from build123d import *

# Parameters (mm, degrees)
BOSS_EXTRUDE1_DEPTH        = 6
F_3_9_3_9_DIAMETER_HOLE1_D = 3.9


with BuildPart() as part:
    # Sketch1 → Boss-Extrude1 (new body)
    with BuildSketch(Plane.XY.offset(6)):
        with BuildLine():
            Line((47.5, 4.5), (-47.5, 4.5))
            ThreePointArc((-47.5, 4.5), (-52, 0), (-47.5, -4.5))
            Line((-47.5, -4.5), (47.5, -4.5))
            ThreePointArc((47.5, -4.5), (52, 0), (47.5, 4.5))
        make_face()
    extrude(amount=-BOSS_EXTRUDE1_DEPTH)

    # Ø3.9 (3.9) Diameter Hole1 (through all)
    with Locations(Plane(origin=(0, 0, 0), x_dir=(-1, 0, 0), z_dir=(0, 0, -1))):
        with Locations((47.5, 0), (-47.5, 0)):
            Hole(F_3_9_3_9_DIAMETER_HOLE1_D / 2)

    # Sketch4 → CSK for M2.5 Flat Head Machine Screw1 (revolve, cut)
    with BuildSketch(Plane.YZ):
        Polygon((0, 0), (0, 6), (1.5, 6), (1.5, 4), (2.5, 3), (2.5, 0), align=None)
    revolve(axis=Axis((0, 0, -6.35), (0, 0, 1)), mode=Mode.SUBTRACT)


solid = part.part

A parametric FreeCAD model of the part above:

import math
import FreeCAD as App
import Part
import Sketcher
Q = App.Units.Quantity


def add_polygon(sketch, points):
    """Adds a closed chain of lines whose ends are joined by coincident constraints."""
    first, n = sketch.GeometryCount, len(points)
    for a, b in zip(points, points[1:] + points[:1]):
        sketch.addGeometry(Part.LineSegment(App.Vector(*a, 0), App.Vector(*b, 0)), False)
    for i in range(n):
        sketch.addConstraint(Sketcher.Constraint("Coincident", first + i, 2, first + (i + 1) % n, 1))

doc = App.newDocument("Part")
params = doc.addObject("Spreadsheet::Sheet", "Params")
for row, (alias, value) in enumerate([
    ("sketch1_radius", "4.5 mm"),
    ("sketch1_width", "95 mm"),
    ("pad1_length", "6 mm"),
    ("sketch2_diameter", "3.9 mm"),
    ("hole_diameter", "3.9 mm"),
    ("sketch3_height", "6 mm"),
    ("sketch3_height2", "3 mm"),
    ("sketch3_height3", "2 mm"),
    ("sketch3_width", "2.5 mm"),
    ("groove_angle", "360 deg"),
], start=1):
    params.set(f"A{row}", alias)
    params.set(f"B{row}", "=" + value)
    params.setAlias(f"B{row}", alias)

body = doc.addObject("PartDesign::Body", "Body")

# Sketch on XY plane
sketch1 = body.newObject("Sketcher::SketchObject", "Sketch")
sketch1.AttachmentSupport = (doc.getObject("XY_Plane"), [""])
sketch1.MapMode = "FlatFace"
sketch1.AttachmentOffset = App.Placement(App.Vector(0, 0, 6), App.Rotation())
sketch1.addGeometry([
    Part.LineSegment(App.Vector(47.5, 4.5, 0), App.Vector(-47.5, 4.5, 0)),
    Part.ArcOfCircle(Part.Circle(App.Vector(-47.5, 0, 0), App.Vector(0, 0, 1), 4.5), math.radians(90), math.radians(270)),
    Part.LineSegment(App.Vector(-47.5, -4.5, 0), App.Vector(47.5, -4.5, 0)),
    Part.ArcOfCircle(Part.Circle(App.Vector(47.5, 0, 0), App.Vector(0, 0, 1), 4.5), math.radians(-90), math.radians(90)),
], False)
sketch1.addConstraint([
    Sketcher.Constraint("Tangent", 0, 2, 1, 1),
    Sketcher.Constraint("Tangent", 1, 2, 2, 1),
    Sketcher.Constraint("Tangent", 2, 2, 3, 1),
    Sketcher.Constraint("Tangent", 3, 2, 0, 1),
    Sketcher.Constraint("Horizontal", 0),
    Sketcher.Constraint("Horizontal", 2),
    Sketcher.Constraint("Symmetric", 1, 3, 3, 3, -1, 1),
    Sketcher.Constraint("Radius", 1, Q("4.5 mm")),
    Sketcher.Constraint("DistanceX", 0, 2, 0, 1, Q("95 mm")),
])
sketch1.setExpression("Constraints[7]", "Params.sketch1_radius")
sketch1.setExpression("Constraints[8]", "Params.sketch1_width")
pad1 = body.newObject("PartDesign::Pad", "Pad")
pad1.Profile = sketch1
pad1.setExpression("Length", "Params.pad1_length")
pad1.Reversed = True

# Sketch on XY plane
sketch2 = body.newObject("Sketcher::SketchObject", "Sketch001")
sketch2.AttachmentSupport = (doc.getObject("XY_Plane"), [""])
sketch2.MapMode = "FlatFace"
sketch2.addGeometry([
    Part.Circle(App.Vector(-47.5, 0, 0), App.Vector(0, 0, 1), 1.9),
    Part.Circle(App.Vector(47.5, 0, 0), App.Vector(0, 0, 1), 1.9),
], False)
sketch2.addConstraint([
    Sketcher.Constraint("Equal", 0, 1),
    Sketcher.Constraint("Symmetric", 0, 3, 1, 3, -1, 1),
    Sketcher.Constraint("PointOnObject", 0, 3, -1),
    Sketcher.Constraint("Diameter", 0, Q("3.9 mm")),
    Sketcher.Constraint("DistanceX", 0, 3, 1, 3, Q("95 mm")),
])
sketch2.setExpression("Constraints[3]", "Params.sketch2_diameter")
doc.recompute()
hole = body.newObject("PartDesign::Hole", "Hole")
hole.Profile = sketch2
hole.ThreadType = "None"
hole.setExpression("Diameter", "Params.hole_diameter")
hole.DepthType = "ThroughAll"
hole.Reversed = True

# Sketch on YZ plane
sketch3 = body.newObject("Sketcher::SketchObject", "Sketch002")
sketch3.AttachmentSupport = (doc.getObject("YZ_Plane"), [""])
sketch3.MapMode = "FlatFace"
add_polygon(sketch3, [(0, 6), (0, 0), (2.5, 0), (2.5, 3), (1.5, 4), (1.5, 6)])  # lines 0-5
sketch3.addConstraint([
    Sketcher.Constraint("Vertical", 0),
    Sketcher.Constraint("Horizontal", 1),
    Sketcher.Constraint("Vertical", 2),
    Sketcher.Constraint("Vertical", 4),
    Sketcher.Constraint("Horizontal", 5),
    Sketcher.Constraint("Coincident", 0, 2, -1, 1),
    Sketcher.Constraint("DistanceY", 0, 2, 0, 1, Q("6 mm")),
    Sketcher.Constraint("DistanceY", 2, 1, 2, 2, Q("3 mm")),
    Sketcher.Constraint("DistanceY", 4, 1, 4, 2, Q("2 mm")),
    Sketcher.Constraint("Angle", 3, Q("135 deg")),
    Sketcher.Constraint("DistanceX", 1, 1, 1, 2, Q("2.5 mm")),
])
sketch3.setExpression("Constraints[12]", "Params.sketch3_height")
sketch3.setExpression("Constraints[13]", "Params.sketch3_height2")
sketch3.setExpression("Constraints[14]", "Params.sketch3_height3")
sketch3.setExpression("Constraints[16]", "Params.sketch3_width")
groove = body.newObject("PartDesign::Groove", "Groove")
groove.Profile = sketch3
groove.ReferenceAxis = (sketch3, ["V_Axis"])
groove.setExpression("Angle", "Params.groove_angle")

doc.recompute()
